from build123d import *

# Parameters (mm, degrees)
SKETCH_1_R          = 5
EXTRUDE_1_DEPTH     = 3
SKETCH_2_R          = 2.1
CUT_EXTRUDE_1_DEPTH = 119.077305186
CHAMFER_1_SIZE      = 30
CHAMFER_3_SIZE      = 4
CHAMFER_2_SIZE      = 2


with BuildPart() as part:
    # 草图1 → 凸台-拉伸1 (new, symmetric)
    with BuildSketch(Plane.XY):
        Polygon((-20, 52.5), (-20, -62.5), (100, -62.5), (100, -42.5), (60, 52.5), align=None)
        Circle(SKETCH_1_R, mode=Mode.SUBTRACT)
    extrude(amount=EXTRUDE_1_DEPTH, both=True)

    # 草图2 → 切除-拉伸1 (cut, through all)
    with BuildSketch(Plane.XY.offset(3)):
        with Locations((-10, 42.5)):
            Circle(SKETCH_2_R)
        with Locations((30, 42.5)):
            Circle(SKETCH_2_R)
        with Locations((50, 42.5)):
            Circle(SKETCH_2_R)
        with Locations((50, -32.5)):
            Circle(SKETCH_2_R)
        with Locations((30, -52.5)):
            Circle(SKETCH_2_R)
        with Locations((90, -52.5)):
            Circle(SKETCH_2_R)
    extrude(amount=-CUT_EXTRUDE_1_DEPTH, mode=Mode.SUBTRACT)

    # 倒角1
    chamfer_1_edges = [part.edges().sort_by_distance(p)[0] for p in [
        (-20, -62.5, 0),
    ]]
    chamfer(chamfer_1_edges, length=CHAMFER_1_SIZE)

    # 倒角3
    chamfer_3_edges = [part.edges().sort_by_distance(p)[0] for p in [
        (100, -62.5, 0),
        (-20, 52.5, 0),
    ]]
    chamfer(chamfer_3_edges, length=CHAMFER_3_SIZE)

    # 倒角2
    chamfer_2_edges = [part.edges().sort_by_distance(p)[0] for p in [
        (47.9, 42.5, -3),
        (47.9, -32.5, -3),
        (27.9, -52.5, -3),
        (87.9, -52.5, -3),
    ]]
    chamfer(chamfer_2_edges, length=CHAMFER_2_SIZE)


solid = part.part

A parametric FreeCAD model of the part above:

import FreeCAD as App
import Part
import Sketcher
Q = App.Units.Quantity


def edges_at(feature, points):
    """Names of the edges that pass closest to the given points."""
    edges = feature.Shape.Edges
    near = lambda p: min(range(len(edges)), key=lambda i: edges[i].distToShape(Part.Vertex(*p))[0])
    return sorted({f"Edge{near(p) + 1}" for p in points})


def add_polygon(sketch, points):
    """Adds a closed chain of lines whose ends are joined by coincident constraints."""
    first, n = sketch.GeometryCount, len(points)
    for a, b in zip(points, points[1:] + points[:1]):
        sketch.addGeometry(Part.LineSegment(App.Vector(*a, 0), App.Vector(*b, 0)), False)
    for i in range(n):
        sketch.addConstraint(Sketcher.Constraint("Coincident", first + i, 2, first + (i + 1) % n, 1))

doc = App.newDocument("Part")
body = doc.addObject("PartDesign::Body", "Body")

# Sketch on XY plane
sketch1 = doc.addObject("Sketcher::SketchObject", "Sketch")
body.addObject(sketch1)
sketch1.AttachmentSupport = (doc.XY_Plane, [""])
sketch1.MapMode = "FlatFace"
add_polygon(sketch1, [(-20, 52.5), (-20, -62.5), (100, -62.5), (100, -42.5), (60, 52.5)])  # lines 0-4
sketch1.addGeometry(Part.Circle(App.Vector(0, 0, 0), App.Vector(0, 0, 1), 5), False)  # 5
sketch1.addConstraint(Sketcher.Constraint("Vertical", 0))
sketch1.addConstraint(Sketcher.Constraint("Horizontal", 1))
sketch1.addConstraint(Sketcher.Constraint("Vertical", 2))
sketch1.addConstraint(Sketcher.Constraint("Horizontal", 4))
sketch1.addConstraint(Sketcher.Constraint("Coincident", 5, 3, -1, 1))
sketch1.addConstraint(Sketcher.Constraint("Diameter", 5, Q("10 mm")))
sketch1.addConstraint(Sketcher.Constraint("DistanceX", 1, 1, 1, 2, Q("120 mm")))
sketch1.addConstraint(Sketcher.Constraint("DistanceX", 4, 2, 4, 1, Q("80 mm")))
sketch1.addConstraint(Sketcher.Constraint("DistanceY", 0, 2, 0, 1, Q("115 mm")))
sketch1.addConstraint(Sketcher.Constraint("DistanceY", 2, 1, 2, 2, Q("20 mm")))
sketch1.addConstraint(Sketcher.Constraint("DistanceX", 0, 2, -1, 1, Q("20 mm")))
sketch1.addConstraint(Sketcher.Constraint("DistanceY", 0, 2, -1, 1, Q("62.5 mm")))
pad1 = doc.addObject("PartDesign::Pad", "Pad")
body.addObject(pad1)
pad1.Profile = sketch1
pad1.Length = 6
pad1.Midplane = True

# Sketch on XY plane
sketch2 = doc.addObject("Sketcher::SketchObject", "Sketch001")
body.addObject(sketch2)
sketch2.AttachmentSupport = (doc.XY_Plane, [""])
sketch2.MapMode = "FlatFace"
sketch2.AttachmentOffset = App.Placement(App.Vector(0, 0, 3), App.Rotation())
sketch2.addGeometry(Part.Circle(App.Vector(-10, 42.5, 0), App.Vector(0, 0, 1), 2.1), False)
sketch2.addGeometry(Part.Circle(App.Vector(30, 42.5, 0), App.Vector(0, 0, 1), 2.1), False)
sketch2.addGeometry(Part.Circle(App.Vector(50, 42.5, 0), App.Vector(0, 0, 1), 2.1), False)
sketch2.addGeometry(Part.Circle(App.Vector(50, -32.5, 0), App.Vector(0, 0, 1), 2.1), False)
sketch2.addGeometry(Part.Circle(App.Vector(30, -52.5, 0), App.Vector(0, 0, 1), 2.1), False)
sketch2.addGeometry(Part.Circle(App.Vector(90, -52.5, 0), App.Vector(0, 0, 1), 2.1), False)
sketch2.addConstraint(Sketcher.Constraint("Equal", 0, 1))
sketch2.addConstraint(Sketcher.Constraint("Equal", 1, 2))
sketch2.addConstraint(Sketcher.Constraint("Equal", 2, 3))
sketch2.addConstraint(Sketcher.Constraint("Equal", 3, 4))
sketch2.addConstraint(Sketcher.Constraint("Equal", 4, 5))
sketch2.addConstraint(Sketcher.Constraint("Horizontal", 0, 3, 1, 3))
sketch2.addConstraint(Sketcher.Constraint("Horizontal", 1, 3, 2, 3))
sketch2.addConstraint(Sketcher.Constraint("Horizontal", 4, 3, 5, 3))
sketch2.addConstraint(Sketcher.Constraint("Vertical", 2, 3, 3, 3))
sketch2.addConstraint(Sketcher.Constraint("Vertical", 1, 3, 4, 3))
sketch2.addConstraint(Sketcher.Constraint("Diameter", 0, Q("4.2 mm")))
sketch2.addConstraint(Sketcher.Constraint("DistanceX", 0, 3, -1, 1, Q("10 mm")))
sketch2.addConstraint(Sketcher.Constraint("DistanceX", -1, 1, 1, 3, Q("30 mm")))
sketch2.addConstraint(Sketcher.Constraint("DistanceX", -1, 1, 2, 3, Q("50 mm")))
sketch2.addConstraint(Sketcher.Constraint("DistanceX", -1, 1, 5, 3, Q("90 mm")))
sketch2.addConstraint(Sketcher.Constraint("DistanceY", 3, 3, 2, 3, Q("75 mm")))
sketch2.addConstraint(Sketcher.Constraint("DistanceY", 4, 3, 3, 3, Q("20 mm")))
sketch2.addConstraint(Sketcher.Constraint("DistanceY", -1, 1, 0, 3, Q("42.5 mm")))
pocket1 = doc.addObject("PartDesign::Pocket", "Pocket")
body.addObject(pocket1)
pocket1.Profile = sketch2
pocket1.Type = "ThroughAll"
doc.recompute()

chamfer = doc.addObject("PartDesign::Chamfer", "Chamfer")
body.addObject(chamfer)
chamfer.Base = (pocket1, edges_at(pocket1, [(-20, -62.5, 0)]))
chamfer.Size = 30
doc.recompute()

chamfer2 = doc.addObject("PartDesign::Chamfer", "Chamfer001")
body.addObject(chamfer2)
chamfer2.Base = (chamfer, edges_at(chamfer, [(100, -62.5, 0), (-20, 52.5, 0)]))
chamfer2.Size = 4
doc.recompute()

chamfer3 = doc.addObject("PartDesign::Chamfer", "Chamfer002")
body.addObject(chamfer3)
chamfer3.Base = (chamfer2, edges_at(chamfer2, [
    (47.9, 42.5, -3),
    (47.9, -32.5, -3),
    (27.9, -52.5, -3),
    (87.9, -52.5, -3),
]))
chamfer3.Size = 2

doc.recompute()
